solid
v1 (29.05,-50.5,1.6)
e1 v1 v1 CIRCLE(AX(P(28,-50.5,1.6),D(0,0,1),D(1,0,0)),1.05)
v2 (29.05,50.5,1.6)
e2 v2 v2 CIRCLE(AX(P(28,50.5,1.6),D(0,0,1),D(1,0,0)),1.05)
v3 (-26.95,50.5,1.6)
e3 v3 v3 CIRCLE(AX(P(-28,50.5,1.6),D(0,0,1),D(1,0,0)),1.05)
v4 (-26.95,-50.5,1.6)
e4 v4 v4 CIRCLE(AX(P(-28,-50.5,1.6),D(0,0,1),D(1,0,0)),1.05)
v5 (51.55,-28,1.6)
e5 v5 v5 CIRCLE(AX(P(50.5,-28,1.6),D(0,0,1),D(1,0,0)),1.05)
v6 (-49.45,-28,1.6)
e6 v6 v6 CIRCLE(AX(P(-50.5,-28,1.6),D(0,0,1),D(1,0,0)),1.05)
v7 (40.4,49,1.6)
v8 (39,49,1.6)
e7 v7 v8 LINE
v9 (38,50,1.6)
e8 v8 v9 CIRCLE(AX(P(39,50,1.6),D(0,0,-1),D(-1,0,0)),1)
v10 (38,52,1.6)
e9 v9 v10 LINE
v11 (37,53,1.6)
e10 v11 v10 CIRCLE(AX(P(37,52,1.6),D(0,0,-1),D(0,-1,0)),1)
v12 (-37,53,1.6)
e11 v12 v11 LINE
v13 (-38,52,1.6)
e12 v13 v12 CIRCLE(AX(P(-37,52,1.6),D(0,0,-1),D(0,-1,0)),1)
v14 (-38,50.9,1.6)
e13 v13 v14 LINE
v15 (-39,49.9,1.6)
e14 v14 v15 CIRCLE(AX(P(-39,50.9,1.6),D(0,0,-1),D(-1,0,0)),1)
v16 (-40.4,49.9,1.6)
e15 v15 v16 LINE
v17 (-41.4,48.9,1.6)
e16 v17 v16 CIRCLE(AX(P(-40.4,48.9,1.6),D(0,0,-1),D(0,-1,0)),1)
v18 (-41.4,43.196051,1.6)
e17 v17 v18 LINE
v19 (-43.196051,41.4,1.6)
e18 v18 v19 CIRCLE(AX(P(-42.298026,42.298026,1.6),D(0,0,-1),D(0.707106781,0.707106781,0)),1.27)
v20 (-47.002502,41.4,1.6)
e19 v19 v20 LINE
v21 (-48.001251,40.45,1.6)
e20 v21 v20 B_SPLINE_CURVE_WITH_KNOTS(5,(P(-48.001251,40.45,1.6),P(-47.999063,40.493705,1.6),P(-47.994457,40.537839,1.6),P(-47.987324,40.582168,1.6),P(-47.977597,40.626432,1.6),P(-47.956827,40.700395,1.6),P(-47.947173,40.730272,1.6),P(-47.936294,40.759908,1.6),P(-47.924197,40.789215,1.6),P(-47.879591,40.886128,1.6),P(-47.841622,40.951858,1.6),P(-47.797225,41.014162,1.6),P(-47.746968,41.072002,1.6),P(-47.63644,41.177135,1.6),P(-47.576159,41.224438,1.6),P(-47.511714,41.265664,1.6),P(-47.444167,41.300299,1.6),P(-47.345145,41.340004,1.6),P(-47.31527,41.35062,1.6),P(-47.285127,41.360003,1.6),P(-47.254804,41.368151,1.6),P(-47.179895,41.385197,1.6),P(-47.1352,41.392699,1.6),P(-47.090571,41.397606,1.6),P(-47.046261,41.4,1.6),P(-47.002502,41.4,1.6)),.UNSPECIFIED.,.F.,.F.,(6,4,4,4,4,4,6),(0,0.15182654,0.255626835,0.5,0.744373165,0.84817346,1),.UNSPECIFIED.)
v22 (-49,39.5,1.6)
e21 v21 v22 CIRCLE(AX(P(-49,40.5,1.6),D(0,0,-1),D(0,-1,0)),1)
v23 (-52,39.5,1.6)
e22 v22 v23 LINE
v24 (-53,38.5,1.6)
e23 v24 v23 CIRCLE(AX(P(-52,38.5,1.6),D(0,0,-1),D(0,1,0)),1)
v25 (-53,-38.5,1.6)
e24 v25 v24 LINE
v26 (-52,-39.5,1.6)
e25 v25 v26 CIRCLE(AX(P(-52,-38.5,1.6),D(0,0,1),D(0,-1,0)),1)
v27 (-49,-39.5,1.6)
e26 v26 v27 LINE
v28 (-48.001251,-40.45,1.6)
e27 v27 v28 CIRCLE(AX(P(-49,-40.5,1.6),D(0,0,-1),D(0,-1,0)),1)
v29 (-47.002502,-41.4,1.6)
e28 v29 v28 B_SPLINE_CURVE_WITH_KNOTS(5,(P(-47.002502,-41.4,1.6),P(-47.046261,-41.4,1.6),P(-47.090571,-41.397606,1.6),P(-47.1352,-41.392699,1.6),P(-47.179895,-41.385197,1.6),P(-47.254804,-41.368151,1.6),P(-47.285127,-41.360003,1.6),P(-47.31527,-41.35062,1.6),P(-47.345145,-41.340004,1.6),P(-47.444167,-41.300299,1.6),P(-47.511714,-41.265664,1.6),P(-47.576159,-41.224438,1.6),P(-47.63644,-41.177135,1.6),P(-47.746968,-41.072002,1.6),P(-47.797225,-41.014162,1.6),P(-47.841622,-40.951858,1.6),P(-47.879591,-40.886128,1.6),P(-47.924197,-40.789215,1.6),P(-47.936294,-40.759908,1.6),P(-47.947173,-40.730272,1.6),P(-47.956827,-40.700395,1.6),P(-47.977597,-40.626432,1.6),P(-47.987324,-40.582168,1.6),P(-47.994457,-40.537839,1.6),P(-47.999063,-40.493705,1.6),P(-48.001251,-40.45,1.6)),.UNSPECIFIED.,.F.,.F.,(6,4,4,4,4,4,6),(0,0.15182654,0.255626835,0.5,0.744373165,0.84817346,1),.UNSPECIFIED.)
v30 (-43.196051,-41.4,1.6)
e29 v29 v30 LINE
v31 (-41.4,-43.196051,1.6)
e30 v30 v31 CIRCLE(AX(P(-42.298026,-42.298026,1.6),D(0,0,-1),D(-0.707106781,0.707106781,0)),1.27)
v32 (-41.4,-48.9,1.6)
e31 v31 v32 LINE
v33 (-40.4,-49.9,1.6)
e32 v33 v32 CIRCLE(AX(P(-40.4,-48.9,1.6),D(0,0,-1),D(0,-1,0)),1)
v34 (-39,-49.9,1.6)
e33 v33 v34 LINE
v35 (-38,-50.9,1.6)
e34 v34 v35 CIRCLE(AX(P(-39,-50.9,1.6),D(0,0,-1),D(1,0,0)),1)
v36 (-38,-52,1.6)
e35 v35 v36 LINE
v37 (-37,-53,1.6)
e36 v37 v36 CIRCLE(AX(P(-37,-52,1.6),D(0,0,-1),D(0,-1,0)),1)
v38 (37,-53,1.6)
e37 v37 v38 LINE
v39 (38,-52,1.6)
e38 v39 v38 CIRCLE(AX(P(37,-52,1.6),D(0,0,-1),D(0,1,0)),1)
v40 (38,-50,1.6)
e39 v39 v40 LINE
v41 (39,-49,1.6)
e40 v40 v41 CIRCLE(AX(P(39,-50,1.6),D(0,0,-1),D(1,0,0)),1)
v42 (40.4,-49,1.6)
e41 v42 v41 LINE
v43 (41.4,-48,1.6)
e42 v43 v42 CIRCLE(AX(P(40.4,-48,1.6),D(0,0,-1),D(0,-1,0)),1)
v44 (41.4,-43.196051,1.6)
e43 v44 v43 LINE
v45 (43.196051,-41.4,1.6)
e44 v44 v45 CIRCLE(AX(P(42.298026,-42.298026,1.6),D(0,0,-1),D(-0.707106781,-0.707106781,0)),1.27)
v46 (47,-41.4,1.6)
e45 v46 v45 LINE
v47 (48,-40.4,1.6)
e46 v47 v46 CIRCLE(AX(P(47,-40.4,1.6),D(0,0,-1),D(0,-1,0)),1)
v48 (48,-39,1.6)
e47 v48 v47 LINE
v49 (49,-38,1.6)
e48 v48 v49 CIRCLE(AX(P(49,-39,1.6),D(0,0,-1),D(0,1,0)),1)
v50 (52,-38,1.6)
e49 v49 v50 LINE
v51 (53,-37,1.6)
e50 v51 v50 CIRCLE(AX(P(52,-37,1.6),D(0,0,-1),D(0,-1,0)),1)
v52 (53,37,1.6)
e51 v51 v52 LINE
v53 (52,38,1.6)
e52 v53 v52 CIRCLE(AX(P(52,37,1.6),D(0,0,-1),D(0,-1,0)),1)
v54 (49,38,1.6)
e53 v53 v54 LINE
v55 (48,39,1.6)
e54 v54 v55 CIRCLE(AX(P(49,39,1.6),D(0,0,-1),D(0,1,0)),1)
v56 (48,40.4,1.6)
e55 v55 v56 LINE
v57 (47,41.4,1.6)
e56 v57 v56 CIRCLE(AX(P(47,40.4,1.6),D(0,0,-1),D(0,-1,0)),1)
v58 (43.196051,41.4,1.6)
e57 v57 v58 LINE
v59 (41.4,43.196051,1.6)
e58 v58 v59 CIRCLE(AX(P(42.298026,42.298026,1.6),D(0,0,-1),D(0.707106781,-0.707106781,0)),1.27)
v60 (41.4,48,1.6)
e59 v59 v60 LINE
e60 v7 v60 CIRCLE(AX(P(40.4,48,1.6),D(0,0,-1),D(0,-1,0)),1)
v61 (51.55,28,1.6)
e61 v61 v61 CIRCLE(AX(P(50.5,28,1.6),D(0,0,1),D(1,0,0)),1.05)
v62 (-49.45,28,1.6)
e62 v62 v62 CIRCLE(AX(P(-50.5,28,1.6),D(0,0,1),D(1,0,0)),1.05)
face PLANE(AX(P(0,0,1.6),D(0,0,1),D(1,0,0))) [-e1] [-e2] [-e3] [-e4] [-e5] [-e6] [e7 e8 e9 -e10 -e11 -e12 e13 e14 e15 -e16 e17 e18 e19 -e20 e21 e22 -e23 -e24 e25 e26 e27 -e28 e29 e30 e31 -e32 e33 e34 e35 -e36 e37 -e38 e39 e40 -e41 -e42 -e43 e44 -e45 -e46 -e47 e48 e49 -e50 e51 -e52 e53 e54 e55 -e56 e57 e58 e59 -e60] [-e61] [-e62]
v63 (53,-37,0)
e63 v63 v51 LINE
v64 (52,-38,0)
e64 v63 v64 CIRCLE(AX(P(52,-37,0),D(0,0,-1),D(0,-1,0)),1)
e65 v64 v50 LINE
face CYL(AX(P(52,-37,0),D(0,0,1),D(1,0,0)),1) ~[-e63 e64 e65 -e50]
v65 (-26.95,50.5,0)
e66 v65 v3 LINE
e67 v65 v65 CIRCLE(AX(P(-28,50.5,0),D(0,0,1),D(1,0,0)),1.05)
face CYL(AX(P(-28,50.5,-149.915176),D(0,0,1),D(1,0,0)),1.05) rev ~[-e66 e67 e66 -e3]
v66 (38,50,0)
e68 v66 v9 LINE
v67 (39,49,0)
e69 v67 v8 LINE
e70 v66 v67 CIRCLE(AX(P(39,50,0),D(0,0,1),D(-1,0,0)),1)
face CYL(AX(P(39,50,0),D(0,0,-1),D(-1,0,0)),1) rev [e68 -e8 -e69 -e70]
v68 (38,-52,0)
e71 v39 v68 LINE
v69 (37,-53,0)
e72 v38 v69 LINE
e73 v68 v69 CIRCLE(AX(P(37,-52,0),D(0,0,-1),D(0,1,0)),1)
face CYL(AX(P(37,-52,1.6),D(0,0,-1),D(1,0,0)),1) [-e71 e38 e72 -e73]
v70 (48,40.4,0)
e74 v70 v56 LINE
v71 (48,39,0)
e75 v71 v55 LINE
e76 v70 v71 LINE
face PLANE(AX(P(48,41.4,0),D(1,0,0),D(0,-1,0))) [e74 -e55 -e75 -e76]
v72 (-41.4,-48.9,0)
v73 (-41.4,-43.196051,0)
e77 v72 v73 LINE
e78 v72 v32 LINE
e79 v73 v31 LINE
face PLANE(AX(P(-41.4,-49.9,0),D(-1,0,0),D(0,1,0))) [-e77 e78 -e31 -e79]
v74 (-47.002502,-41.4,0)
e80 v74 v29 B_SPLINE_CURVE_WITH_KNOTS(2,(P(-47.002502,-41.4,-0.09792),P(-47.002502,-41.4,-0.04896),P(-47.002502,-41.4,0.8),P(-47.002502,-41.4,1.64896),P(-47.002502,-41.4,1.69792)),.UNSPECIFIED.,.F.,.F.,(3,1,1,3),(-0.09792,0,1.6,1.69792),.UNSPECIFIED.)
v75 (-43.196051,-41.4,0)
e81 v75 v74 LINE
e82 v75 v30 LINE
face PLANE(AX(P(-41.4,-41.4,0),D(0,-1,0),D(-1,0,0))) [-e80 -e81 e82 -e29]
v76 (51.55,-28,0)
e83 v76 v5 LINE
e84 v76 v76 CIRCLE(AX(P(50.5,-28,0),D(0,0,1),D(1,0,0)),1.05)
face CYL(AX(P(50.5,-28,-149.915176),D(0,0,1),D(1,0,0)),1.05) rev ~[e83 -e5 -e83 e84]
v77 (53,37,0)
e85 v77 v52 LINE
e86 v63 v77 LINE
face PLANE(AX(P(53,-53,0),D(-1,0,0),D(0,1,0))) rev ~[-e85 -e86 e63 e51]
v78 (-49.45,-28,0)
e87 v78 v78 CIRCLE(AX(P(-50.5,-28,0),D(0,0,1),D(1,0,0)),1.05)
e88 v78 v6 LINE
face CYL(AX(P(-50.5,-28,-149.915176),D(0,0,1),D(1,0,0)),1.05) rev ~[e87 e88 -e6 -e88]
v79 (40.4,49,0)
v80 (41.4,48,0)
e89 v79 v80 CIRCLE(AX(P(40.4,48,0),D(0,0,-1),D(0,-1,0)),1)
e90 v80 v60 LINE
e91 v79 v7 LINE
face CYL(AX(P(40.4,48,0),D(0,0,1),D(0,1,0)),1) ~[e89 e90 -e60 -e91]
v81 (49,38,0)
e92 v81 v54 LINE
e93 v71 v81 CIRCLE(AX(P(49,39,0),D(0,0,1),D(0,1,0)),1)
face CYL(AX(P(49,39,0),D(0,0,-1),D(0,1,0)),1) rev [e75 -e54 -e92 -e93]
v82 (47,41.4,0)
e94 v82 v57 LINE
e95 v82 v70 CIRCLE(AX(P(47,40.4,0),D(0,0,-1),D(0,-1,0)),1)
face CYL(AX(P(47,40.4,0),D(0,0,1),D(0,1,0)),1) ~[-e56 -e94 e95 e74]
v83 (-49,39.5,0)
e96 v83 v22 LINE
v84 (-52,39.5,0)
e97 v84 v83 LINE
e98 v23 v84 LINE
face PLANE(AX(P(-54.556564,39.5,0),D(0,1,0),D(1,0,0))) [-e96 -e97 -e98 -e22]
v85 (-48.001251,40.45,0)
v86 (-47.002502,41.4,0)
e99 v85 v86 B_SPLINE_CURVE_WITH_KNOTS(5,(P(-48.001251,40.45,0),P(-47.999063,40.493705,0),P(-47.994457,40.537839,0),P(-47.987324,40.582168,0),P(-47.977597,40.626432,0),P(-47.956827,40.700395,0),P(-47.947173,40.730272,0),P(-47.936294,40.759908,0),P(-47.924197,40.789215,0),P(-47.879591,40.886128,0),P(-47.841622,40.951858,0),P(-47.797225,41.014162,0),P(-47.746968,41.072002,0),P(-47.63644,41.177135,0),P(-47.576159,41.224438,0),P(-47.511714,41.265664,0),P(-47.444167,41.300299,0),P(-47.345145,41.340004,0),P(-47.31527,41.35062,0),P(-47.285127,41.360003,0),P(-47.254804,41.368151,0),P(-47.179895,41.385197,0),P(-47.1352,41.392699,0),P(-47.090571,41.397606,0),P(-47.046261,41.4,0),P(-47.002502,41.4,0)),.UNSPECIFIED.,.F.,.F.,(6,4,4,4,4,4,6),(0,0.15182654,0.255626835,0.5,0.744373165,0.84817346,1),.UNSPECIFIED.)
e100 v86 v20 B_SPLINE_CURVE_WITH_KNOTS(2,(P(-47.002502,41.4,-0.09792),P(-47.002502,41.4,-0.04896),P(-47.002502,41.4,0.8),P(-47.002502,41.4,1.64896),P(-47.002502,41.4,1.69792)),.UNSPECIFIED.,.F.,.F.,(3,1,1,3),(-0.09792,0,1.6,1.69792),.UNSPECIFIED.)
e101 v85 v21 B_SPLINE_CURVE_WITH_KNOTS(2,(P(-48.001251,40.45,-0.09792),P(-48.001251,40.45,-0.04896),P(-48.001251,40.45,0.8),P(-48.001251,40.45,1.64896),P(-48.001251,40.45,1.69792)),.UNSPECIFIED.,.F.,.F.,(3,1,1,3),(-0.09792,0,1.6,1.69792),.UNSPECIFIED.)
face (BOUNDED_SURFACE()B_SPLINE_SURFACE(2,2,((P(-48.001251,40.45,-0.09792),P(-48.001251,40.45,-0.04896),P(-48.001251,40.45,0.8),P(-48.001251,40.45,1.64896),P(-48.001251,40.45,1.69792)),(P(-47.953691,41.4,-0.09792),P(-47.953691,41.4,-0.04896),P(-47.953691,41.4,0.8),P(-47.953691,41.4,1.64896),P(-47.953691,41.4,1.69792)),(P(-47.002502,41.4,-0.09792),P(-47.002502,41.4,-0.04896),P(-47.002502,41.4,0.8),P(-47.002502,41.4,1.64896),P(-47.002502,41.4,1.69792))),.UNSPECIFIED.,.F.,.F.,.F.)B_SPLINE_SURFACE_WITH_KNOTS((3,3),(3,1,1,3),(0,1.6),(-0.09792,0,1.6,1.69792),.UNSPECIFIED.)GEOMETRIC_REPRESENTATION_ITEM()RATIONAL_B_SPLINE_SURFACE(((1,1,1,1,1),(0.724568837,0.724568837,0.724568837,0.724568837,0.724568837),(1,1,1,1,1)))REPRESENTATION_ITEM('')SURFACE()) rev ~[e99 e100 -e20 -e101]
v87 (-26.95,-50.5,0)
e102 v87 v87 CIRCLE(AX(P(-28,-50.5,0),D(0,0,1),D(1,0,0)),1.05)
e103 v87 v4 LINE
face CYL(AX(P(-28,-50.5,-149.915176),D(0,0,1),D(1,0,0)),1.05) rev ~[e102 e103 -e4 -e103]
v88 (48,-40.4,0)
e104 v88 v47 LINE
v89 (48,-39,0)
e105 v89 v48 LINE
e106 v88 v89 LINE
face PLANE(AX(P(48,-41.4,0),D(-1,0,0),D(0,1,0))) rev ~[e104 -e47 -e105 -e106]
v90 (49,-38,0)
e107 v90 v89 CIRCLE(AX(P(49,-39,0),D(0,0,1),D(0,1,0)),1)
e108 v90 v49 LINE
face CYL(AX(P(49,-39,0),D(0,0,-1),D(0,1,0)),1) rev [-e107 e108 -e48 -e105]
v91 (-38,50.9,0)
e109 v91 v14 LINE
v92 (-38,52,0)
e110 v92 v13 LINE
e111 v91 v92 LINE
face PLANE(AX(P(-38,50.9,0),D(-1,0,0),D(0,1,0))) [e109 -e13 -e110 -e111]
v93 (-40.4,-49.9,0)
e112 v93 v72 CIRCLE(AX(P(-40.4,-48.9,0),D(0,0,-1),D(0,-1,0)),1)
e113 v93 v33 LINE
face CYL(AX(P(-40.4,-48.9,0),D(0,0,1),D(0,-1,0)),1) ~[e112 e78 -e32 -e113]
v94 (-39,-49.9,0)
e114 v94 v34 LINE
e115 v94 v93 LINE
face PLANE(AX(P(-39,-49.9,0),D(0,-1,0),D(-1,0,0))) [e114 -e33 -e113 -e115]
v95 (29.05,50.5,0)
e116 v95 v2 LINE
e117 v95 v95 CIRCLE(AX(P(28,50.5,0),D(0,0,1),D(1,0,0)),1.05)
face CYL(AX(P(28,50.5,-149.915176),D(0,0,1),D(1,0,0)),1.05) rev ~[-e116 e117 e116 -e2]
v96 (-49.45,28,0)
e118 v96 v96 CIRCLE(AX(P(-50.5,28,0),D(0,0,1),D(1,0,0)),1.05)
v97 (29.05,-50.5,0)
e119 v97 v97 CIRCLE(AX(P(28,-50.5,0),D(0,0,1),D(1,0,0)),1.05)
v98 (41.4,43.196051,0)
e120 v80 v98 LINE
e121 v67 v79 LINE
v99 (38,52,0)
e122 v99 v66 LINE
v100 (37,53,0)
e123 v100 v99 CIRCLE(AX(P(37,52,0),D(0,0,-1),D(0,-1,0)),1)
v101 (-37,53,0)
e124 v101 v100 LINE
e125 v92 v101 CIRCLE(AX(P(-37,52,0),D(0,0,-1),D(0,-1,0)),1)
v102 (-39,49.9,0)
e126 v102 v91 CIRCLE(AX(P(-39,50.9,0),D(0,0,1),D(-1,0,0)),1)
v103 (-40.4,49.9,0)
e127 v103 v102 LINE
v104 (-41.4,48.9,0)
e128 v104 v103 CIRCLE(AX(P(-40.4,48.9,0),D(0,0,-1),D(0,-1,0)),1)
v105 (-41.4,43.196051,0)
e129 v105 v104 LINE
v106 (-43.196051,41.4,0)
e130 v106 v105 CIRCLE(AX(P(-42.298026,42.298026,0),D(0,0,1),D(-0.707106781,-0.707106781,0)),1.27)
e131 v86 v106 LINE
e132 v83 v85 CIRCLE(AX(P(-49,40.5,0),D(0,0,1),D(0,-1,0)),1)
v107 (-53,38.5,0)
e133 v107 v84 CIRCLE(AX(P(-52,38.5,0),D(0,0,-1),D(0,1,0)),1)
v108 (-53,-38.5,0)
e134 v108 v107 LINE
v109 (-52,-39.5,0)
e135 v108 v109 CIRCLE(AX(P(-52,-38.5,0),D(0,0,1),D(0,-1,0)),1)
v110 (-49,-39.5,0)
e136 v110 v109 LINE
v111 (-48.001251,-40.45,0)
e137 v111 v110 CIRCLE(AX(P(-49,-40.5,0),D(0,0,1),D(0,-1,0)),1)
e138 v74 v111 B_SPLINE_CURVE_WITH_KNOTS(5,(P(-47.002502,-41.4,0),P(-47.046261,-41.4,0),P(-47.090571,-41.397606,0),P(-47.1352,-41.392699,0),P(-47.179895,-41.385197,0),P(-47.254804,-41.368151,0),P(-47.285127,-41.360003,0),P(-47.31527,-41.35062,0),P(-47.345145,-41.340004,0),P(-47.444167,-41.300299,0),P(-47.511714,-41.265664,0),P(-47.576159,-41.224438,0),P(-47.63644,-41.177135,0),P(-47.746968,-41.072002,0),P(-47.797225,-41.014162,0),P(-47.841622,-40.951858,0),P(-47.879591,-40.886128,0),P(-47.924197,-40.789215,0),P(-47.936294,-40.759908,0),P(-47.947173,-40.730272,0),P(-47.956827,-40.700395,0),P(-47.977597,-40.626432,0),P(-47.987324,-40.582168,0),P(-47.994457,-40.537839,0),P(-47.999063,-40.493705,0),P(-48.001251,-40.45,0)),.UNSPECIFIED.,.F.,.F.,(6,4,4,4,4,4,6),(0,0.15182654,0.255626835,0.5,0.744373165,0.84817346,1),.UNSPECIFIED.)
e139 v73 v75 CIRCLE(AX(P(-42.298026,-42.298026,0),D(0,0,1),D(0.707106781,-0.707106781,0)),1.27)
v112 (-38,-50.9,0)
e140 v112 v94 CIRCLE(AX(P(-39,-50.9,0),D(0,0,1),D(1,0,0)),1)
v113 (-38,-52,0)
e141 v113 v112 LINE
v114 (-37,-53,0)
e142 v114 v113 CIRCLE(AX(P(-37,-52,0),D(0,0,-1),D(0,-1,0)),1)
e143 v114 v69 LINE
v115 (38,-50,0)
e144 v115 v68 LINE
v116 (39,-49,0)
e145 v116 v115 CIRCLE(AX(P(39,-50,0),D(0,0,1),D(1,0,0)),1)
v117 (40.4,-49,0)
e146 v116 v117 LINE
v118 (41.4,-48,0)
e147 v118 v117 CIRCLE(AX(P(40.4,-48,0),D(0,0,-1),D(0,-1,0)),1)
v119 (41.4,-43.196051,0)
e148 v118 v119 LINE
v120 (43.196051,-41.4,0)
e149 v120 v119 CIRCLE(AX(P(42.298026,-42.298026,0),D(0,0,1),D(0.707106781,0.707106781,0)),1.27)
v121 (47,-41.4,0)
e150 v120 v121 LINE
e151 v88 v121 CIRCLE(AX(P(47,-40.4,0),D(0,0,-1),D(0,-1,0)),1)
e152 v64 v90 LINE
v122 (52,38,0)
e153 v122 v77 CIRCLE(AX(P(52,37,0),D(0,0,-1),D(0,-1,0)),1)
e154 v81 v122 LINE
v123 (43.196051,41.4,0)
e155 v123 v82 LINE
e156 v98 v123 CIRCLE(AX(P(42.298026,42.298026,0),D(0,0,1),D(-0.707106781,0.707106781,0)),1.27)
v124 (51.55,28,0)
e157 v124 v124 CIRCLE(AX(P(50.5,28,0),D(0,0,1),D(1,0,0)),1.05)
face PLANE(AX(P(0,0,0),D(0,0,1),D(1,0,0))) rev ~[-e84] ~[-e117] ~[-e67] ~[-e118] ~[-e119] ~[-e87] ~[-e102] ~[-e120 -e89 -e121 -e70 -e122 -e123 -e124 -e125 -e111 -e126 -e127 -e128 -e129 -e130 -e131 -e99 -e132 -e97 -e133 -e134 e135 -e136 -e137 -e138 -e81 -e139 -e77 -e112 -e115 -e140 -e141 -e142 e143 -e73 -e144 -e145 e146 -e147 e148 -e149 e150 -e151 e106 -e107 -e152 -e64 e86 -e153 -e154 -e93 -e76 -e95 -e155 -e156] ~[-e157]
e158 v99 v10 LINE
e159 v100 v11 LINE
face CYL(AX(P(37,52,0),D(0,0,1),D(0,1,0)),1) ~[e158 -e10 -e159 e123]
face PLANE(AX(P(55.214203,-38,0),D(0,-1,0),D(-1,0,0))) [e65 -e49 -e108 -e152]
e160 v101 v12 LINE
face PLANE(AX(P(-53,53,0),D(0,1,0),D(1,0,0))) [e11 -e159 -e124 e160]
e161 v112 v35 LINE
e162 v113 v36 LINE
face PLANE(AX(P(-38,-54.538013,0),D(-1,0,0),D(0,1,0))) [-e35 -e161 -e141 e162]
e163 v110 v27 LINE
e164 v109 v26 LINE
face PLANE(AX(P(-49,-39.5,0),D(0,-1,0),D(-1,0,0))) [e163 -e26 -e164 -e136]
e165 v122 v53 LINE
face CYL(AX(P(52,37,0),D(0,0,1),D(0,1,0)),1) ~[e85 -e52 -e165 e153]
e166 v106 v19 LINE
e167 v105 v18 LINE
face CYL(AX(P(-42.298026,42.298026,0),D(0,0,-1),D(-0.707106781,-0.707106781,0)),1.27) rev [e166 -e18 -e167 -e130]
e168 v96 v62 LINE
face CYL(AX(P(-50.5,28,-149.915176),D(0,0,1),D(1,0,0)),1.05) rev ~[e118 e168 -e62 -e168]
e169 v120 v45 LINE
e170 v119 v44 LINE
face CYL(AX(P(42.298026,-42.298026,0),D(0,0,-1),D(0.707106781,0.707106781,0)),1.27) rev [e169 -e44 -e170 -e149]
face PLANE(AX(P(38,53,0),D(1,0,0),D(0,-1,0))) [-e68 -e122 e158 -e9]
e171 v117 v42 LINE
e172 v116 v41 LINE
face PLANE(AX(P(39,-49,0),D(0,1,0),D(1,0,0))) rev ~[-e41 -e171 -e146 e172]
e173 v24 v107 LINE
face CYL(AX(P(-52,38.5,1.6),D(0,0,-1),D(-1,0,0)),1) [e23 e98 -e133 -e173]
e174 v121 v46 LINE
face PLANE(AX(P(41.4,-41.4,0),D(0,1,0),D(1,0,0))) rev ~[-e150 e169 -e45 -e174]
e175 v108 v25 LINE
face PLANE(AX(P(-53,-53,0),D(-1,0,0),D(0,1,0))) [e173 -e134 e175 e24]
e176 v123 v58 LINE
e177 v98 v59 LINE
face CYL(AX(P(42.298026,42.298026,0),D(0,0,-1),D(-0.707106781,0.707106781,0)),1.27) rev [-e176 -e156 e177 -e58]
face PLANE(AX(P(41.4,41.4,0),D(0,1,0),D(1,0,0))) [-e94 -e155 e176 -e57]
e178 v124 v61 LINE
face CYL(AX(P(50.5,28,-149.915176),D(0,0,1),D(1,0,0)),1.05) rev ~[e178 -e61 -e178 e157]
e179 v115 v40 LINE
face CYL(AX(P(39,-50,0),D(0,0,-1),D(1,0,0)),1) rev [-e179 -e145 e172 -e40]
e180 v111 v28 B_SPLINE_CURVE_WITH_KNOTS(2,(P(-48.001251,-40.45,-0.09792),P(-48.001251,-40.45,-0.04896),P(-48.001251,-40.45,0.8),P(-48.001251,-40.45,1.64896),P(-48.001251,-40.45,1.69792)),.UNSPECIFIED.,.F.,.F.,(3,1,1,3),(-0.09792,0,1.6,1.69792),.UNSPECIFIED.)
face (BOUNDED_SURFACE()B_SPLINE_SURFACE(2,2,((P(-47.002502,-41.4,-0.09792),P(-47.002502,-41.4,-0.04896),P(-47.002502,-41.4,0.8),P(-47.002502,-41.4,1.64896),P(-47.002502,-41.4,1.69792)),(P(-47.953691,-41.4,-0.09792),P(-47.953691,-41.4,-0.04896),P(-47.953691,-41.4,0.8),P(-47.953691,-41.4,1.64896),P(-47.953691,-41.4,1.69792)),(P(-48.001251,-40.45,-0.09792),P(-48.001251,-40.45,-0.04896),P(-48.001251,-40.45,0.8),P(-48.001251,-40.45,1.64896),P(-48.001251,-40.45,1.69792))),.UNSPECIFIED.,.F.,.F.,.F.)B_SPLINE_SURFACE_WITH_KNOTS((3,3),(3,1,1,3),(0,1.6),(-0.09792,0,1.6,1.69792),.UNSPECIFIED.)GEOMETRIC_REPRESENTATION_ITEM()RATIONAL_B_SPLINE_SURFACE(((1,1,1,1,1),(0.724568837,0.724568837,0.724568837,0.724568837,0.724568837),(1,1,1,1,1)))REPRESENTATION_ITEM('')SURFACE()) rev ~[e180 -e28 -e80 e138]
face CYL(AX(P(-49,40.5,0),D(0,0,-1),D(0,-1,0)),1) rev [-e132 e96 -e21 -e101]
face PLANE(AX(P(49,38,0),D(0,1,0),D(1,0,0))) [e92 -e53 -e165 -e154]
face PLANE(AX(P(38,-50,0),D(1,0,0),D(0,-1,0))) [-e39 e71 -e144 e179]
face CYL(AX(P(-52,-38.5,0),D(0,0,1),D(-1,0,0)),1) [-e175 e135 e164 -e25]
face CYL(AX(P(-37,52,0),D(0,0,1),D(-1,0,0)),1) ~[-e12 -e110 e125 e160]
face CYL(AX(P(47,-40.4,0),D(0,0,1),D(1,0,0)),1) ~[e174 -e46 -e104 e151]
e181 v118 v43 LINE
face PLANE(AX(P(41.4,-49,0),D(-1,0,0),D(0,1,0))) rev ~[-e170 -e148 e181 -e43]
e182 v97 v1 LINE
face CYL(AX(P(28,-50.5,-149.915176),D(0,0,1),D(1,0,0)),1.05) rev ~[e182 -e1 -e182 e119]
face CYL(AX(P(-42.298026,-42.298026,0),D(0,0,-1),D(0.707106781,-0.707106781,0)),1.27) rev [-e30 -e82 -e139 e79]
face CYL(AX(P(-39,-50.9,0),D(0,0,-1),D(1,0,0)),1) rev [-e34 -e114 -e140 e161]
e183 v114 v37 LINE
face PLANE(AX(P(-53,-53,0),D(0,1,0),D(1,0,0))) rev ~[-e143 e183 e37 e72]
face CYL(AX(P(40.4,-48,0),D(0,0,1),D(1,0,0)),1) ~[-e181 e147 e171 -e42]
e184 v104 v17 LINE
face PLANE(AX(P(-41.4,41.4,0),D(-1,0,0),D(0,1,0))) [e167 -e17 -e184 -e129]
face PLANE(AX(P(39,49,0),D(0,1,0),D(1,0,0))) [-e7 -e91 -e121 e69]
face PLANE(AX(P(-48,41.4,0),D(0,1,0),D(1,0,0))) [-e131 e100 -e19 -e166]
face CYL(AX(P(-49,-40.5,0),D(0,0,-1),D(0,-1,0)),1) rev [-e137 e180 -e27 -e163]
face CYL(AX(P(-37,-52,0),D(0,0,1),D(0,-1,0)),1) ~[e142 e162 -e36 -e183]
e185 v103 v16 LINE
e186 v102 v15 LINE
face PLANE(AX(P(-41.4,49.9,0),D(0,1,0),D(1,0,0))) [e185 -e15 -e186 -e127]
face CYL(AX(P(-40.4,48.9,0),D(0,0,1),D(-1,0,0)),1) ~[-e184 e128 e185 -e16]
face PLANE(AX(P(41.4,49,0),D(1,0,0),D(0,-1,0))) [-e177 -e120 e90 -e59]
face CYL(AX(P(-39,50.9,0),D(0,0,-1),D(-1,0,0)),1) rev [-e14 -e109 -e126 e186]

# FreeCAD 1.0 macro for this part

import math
import FreeCAD as App
import Part
import Sketcher

V = App.Vector
Q = App.Units.Quantity


def edges_at(feature, points):
    """Names of the edges that pass closest to the given points."""
    edges = feature.Shape.Edges
    near = lambda p: min(range(len(edges)), key=lambda i: edges[i].distToShape(Part.Vertex(*p))[0])
    return sorted({f"Edge{near(p) + 1}" for p in points})

doc = App.newDocument("Part")
body = doc.addObject("PartDesign::Body", "Body")

sketch1 = body.newObject("Sketcher::SketchObject", "Sketch")
sketch1.AttachmentSupport = (doc.getObject("XY_Plane"), [""])
sketch1.MapMode = "FlatFace"
sketch1.addGeometry([
    Part.LineSegment(V(-53, 53, 0), V(-53, -53, 0)),
    Part.LineSegment(V(-53, -53, 0), V(53, -53, 0)),
    Part.LineSegment(V(53, -53, 0), V(53, 53, 0)),
    Part.LineSegment(V(53, 53, 0), V(-53, 53, 0)),
], False)
sketch1.addConstraint([
    Sketcher.Constraint("Coincident", 0, 2, 1, 1),
    Sketcher.Constraint("Coincident", 1, 2, 2, 1),
    Sketcher.Constraint("Coincident", 2, 2, 3, 1),
    Sketcher.Constraint("Coincident", 3, 2, 0, 1),
    Sketcher.Constraint("Vertical", 0),
    Sketcher.Constraint("Horizontal", 1),
    Sketcher.Constraint("Vertical", 2),
    Sketcher.Constraint("Horizontal", 3),
    Sketcher.Constraint("Symmetric", 0, 2, 2, 2, -1, 1),
    Sketcher.Constraint("Equal", 3, 0),
    Sketcher.Constraint("DistanceX", 1, 1, 1, 2, Q("106 mm")),
])
pad1 = body.newObject("PartDesign::Pad", "Pad")
pad1.Profile = sketch1
pad1.Length = 1.6

sketch2 = body.newObject("Sketcher::SketchObject", "Sketch001")
sketch2.AttachmentSupport = (doc.getObject("XY_Plane"), [""])
sketch2.MapMode = "FlatFace"
sketch2.addGeometry([
    Part.LineSegment(V(41.4, -41.4, 0), V(48, -41.4, 0)),
    Part.LineSegment(V(48, -41.4, 0), V(48, -39, 0)),
    Part.LineSegment(V(48, -39, 0), V(60.106513, -39, 0)),
    Part.LineSegment(V(60.106513, -39, 0), V(60.106513, -61.452099, 0)),
    Part.LineSegment(V(60.106513, -61.452099, 0), V(39, -61.452099, 0)),
    Part.LineSegment(V(39, -61.452099, 0), V(39, -49, 0)),
    Part.LineSegment(V(39, -49, 0), V(41.4, -49, 0)),
    Part.LineSegment(V(41.4, -49, 0), V(41.4, -41.4, 0)),
    Part.LineSegment(V(-39, -49.9, 0), V(-39, -56.275253, 0)),
    Part.LineSegment(V(-39, -56.275253, 0), V(-55.517672, -56.275253, 0)),
    Part.LineSegment(V(-55.517672, -56.275253, 0), V(-55.517672, -40.5, 0)),
    Part.LineSegment(V(-55.517672, -40.5, 0), V(-48, -40.5, 0)),
    Part.LineSegment(V(-48, -40.5, 0), V(-48, -41.4, 0)),
    Part.LineSegment(V(-48, -41.4, 0), V(-41.4, -41.4, 0)),
    Part.LineSegment(V(-41.4, -41.4, 0), V(-41.4, -49.9, 0)),
    Part.LineSegment(V(-41.4, -49.9, 0), V(-39, -49.9, 0)),
    Part.LineSegment(V(-48, 40.5, 0), V(-55.383847, 40.5, 0)),
    Part.LineSegment(V(-55.383847, 40.5, 0), V(-55.383847, 57.687688, 0)),
    Part.LineSegment(V(-55.383847, 57.687688, 0), V(-39, 57.687688, 0)),
    Part.LineSegment(V(-39, 57.687688, 0), V(-39, 49.9, 0)),
    Part.LineSegment(V(-39, 49.9, 0), V(-41.4, 49.9, 0)),
    Part.LineSegment(V(-41.4, 49.9, 0), V(-41.4, 41.4, 0)),
    Part.LineSegment(V(-41.4, 41.4, 0), V(-48, 41.4, 0)),
    Part.LineSegment(V(-48, 41.4, 0), V(-48, 40.5, 0)),
    Part.LineSegment(V(39, 49, 0), V(39, 59.880423, 0)),
    Part.LineSegment(V(39, 59.880423, 0), V(56.842823, 59.880423, 0)),
    Part.LineSegment(V(56.842823, 59.880423, 0), V(56.842823, 39, 0)),
    Part.LineSegment(V(56.842823, 39, 0), V(48, 39, 0)),
    Part.LineSegment(V(48, 39, 0), V(48, 41.4, 0)),
    Part.LineSegment(V(48, 41.4, 0), V(41.4, 41.4, 0)),
    Part.LineSegment(V(41.4, 41.4, 0), V(41.4, 49, 0)),
    Part.LineSegment(V(41.4, 49, 0), V(39, 49, 0)),
], False)
sketch2.addConstraint([
    Sketcher.Constraint("Coincident", 0, 2, 1, 1),
    Sketcher.Constraint("Coincident", 1, 2, 2, 1),
    Sketcher.Constraint("Coincident", 2, 2, 3, 1),
    Sketcher.Constraint("Coincident", 3, 2, 4, 1),
    Sketcher.Constraint("Coincident", 4, 2, 5, 1),
    Sketcher.Constraint("Coincident", 5, 2, 6, 1),
    Sketcher.Constraint("Coincident", 6, 2, 7, 1),
    Sketcher.Constraint("Coincident", 7, 2, 0, 1),
    Sketcher.Constraint("Coincident", 8, 2, 9, 1),
    Sketcher.Constraint("Coincident", 9, 2, 10, 1),
    Sketcher.Constraint("Coincident", 10, 2, 11, 1),
    Sketcher.Constraint("Coincident", 11, 2, 12, 1),
    Sketcher.Constraint("Coincident", 12, 2, 13, 1),
    Sketcher.Constraint("Coincident", 13, 2, 14, 1),
    Sketcher.Constraint("Coincident", 14, 2, 15, 1),
    Sketcher.Constraint("Coincident", 15, 2, 8, 1),
    Sketcher.Constraint("Coincident", 16, 2, 17, 1),
    Sketcher.Constraint("Coincident", 17, 2, 18, 1),
    Sketcher.Constraint("Coincident", 18, 2, 19, 1),
    Sketcher.Constraint("Coincident", 19, 2, 20, 1),
    Sketcher.Constraint("Coincident", 20, 2, 21, 1),
    Sketcher.Constraint("Coincident", 21, 2, 22, 1),
    Sketcher.Constraint("Coincident", 22, 2, 23, 1),
    Sketcher.Constraint("Coincident", 23, 2, 16, 1),
    Sketcher.Constraint("Coincident", 24, 2, 25, 1),
    Sketcher.Constraint("Coincident", 25, 2, 26, 1),
    Sketcher.Constraint("Coincident", 26, 2, 27, 1),
    Sketcher.Constraint("Coincident", 27, 2, 28, 1),
    Sketcher.Constraint("Coincident", 28, 2, 29, 1),
    Sketcher.Constraint("Coincident", 29, 2, 30, 1),
    Sketcher.Constraint("Coincident", 30, 2, 31, 1),
    Sketcher.Constraint("Coincident", 31, 2, 24, 1),
    Sketcher.Constraint("Horizontal", 0),
    Sketcher.Constraint("Vertical", 1),
    Sketcher.Constraint("Horizontal", 2),
    Sketcher.Constraint("Vertical", 3),
    Sketcher.Constraint("Horizontal", 4),
    Sketcher.Constraint("Vertical", 5),
    Sketcher.Constraint("Horizontal", 6),
    Sketcher.Constraint("Vertical", 7),
    Sketcher.Constraint("Vertical", 8),
    Sketcher.Constraint("Horizontal", 9),
    Sketcher.Constraint("Vertical", 10),
    Sketcher.Constraint("Horizontal", 11),
    Sketcher.Constraint("Vertical", 12),
    Sketcher.Constraint("Horizontal", 13),
    Sketcher.Constraint("Vertical", 14),
    Sketcher.Constraint("Horizontal", 15),
    Sketcher.Constraint("Horizontal", 16),
    Sketcher.Constraint("Vertical", 17),
    Sketcher.Constraint("Horizontal", 18),
    Sketcher.Constraint("Vertical", 19),
    Sketcher.Constraint("Horizontal", 20),
    Sketcher.Constraint("Vertical", 21),
    Sketcher.Constraint("Horizontal", 22),
    Sketcher.Constraint("Vertical", 23),
    Sketcher.Constraint("Vertical", 24),
    Sketcher.Constraint("Horizontal", 25),
    Sketcher.Constraint("Vertical", 26),
    Sketcher.Constraint("Horizontal", 27),
    Sketcher.Constraint("Vertical", 28),
    Sketcher.Constraint("Horizontal", 29),
    Sketcher.Constraint("Vertical", 30),
    Sketcher.Constraint("Horizontal", 31),
    Sketcher.Constraint("Symmetric", 7, 2, 21, 2, -1, 1),
    Sketcher.Constraint("Symmetric", 12, 2, 28, 2, -1, 1),
    Sketcher.Constraint("Symmetric", 0, 2, 12, 2, -2),
    Sketcher.Constraint("Symmetric", 15, 2, 19, 2, -1),
    Sketcher.Constraint("Symmetric", 11, 2, 23, 2, -1),
    Sketcher.Constraint("Symmetric", 6, 2, 30, 2, -1),
    Sketcher.Constraint("Vertical", 14, 2, 20, 2),
    Sketcher.Constraint("Vertical", 5, 2, 24, 2),
    Sketcher.Constraint("Equal", 6, 15),
    Sketcher.Constraint("Equal", 31, 1),
    Sketcher.Constraint("Equal", 1, 28),
    Sketcher.Constraint("DistanceX", 0, 1, 0, 2, Q("6.6 mm")),
    Sketcher.Constraint("DistanceX", 6, 1, 6, 2, Q("2.4 mm")),
    Sketcher.Constraint("DistanceY", 7, 1, 7, 2, Q("7.6 mm")),
    Sketcher.Constraint("DistanceY", 12, 2, 12, 1, Q("0.9 mm")),
    Sketcher.Constraint("DistanceY", 14, 2, 14, 1, Q("8.5 mm")),
    Sketcher.Constraint("DistanceX", -1, 1, 0, 2, Q("48 mm")),
    Sketcher.Constraint("DistanceY", 1, 2, -1, 1, Q("39 mm")),
    Sketcher.Constraint("DistanceY", 3, 2, 3, 1, Q("22.452099 mm")),
    Sketcher.Constraint("DistanceX", 2, 1, 2, 2, Q("12.106513 mm")),
    Sketcher.Constraint("DistanceX", 9, 2, 9, 1, Q("16.517672 mm")),
    Sketcher.Constraint("DistanceX", 16, 2, 16, 1, Q("7.383847 mm")),
    Sketcher.Constraint("DistanceX", 25, 1, 25, 2, Q("17.842823 mm")),
    Sketcher.Constraint("DistanceY", 8, 2, 8, 1, Q("6.375253 mm")),
    Sketcher.Constraint("DistanceY", 17, 1, 17, 2, Q("17.187688 mm")),
    Sketcher.Constraint("DistanceY", 24, 1, 24, 2, Q("10.880423 mm")),
])
pocket1 = body.newObject("PartDesign::Pocket", "Pocket")
pocket1.Profile = sketch2
pocket1.Type = "ThroughAll"
pocket1.Reversed = True

sketch3 = body.newObject("Sketcher::SketchObject", "Sketch002")
sketch3.AttachmentSupport = (doc.getObject("XY_Plane"), [""])
sketch3.MapMode = "FlatFace"
sketch3.addGeometry([
    Part.LineSegment(V(44.546497, -46.342548, 0), V(41.4, -43.196051, 0)),
    Part.ArcOfCircle(Part.Circle(V(42.298026, -42.298026, 0), V(0, 0, 1), 1.27), math.radians(45), math.radians(225)),
    Part.LineSegment(V(43.196051, -41.4, 0), V(46.342548, -44.546497, 0)),
    Part.ArcOfCircle(Part.Circle(V(45.444523, -45.444523, 0), V(0, 0, 1), 1.27), math.radians(-135), math.radians(45)),
    Part.LineSegment(V(-44.938218, -43.142166, 0), V(-43.196051, -41.4, 0)),
    Part.ArcOfCircle(Part.Circle(V(-42.298026, -42.298026, 0), V(0, 0, 1), 1.27), math.radians(-45), math.radians(135)),
    Part.LineSegment(V(-41.4, -43.196051, 0), V(-43.142166, -44.938218, 0)),
    Part.ArcOfCircle(Part.Circle(V(-44.040192, -44.040192, 0), V(0, 0, 1), 1.27), math.radians(135), math.radians(315)),
    Part.LineSegment(V(-43.13099, 44.927041, 0), V(-41.4, 43.196051, 0)),
    Part.ArcOfCircle(Part.Circle(V(-42.298026, 42.298026, 0), V(0, 0, 1), 1.27), math.radians(-135), math.radians(45)),
    Part.LineSegment(V(-43.196051, 41.4, 0), V(-44.927041, 43.13099, 0)),
    Part.ArcOfCircle(Part.Circle(V(-44.029016, 44.029016, 0), V(0, 0, 1), 1.27), math.radians(45), math.radians(225)),
    Part.LineSegment(V(44.694846, 42.898795, 0), V(43.196051, 41.4, 0)),
    Part.ArcOfCircle(Part.Circle(V(42.298026, 42.298026, 0), V(0, 0, 1), 1.27), math.radians(135), math.radians(315)),
    Part.LineSegment(V(41.4, 43.196051, 0), V(42.898795, 44.694846, 0)),
    Part.ArcOfCircle(Part.Circle(V(43.796821, 43.796821, 0), V(0, 0, 1), 1.27), math.radians(-45), math.radians(135)),
], False)
sketch3.addConstraint([
    Sketcher.Constraint("Tangent", 0, 2, 1, 2),
    Sketcher.Constraint("Tangent", 1, 1, 2, 1),
    Sketcher.Constraint("Tangent", 2, 2, 3, 2),
    Sketcher.Constraint("Tangent", 3, 1, 0, 1),
    Sketcher.Constraint("Tangent", 4, 2, 5, 2),
    Sketcher.Constraint("Tangent", 5, 1, 6, 1),
    Sketcher.Constraint("Tangent", 6, 2, 7, 2),
    Sketcher.Constraint("Tangent", 7, 1, 4, 1),
    Sketcher.Constraint("Tangent", 8, 2, 9, 2),
    Sketcher.Constraint("Tangent", 9, 1, 10, 1),
    Sketcher.Constraint("Tangent", 10, 2, 11, 2),
    Sketcher.Constraint("Tangent", 11, 1, 8, 1),
    Sketcher.Constraint("Tangent", 12, 2, 13, 2),
    Sketcher.Constraint("Tangent", 13, 1, 14, 1),
    Sketcher.Constraint("Tangent", 14, 2, 15, 2),
    Sketcher.Constraint("Tangent", 15, 1, 12, 1),
    Sketcher.Constraint("Equal", 1, 3),
    Sketcher.Constraint("Equal", 3, 5),
    Sketcher.Constraint("Equal", 5, 7),
    Sketcher.Constraint("Equal", 7, 9),
    Sketcher.Constraint("Equal", 9, 11),
    Sketcher.Constraint("Equal", 11, 13),
    Sketcher.Constraint("Equal", 13, 15),
    Sketcher.Constraint("Symmetric", 1, 3, 9, 3, -1, 1),
    Sketcher.Constraint("Symmetric", 5, 3, 13, 3, -1, 1),
    Sketcher.Constraint("Symmetric", 1, 3, 5, 3, -2),
    Sketcher.Constraint("Perpendicular", 2, 4),
    Sketcher.Constraint("Perpendicular", 6, 8),
    Sketcher.Constraint("Perpendicular", 10, 12),
    Sketcher.Constraint("Horizontal", 1, 1, 4, 2),
    Sketcher.Constraint("Radius", 1, Q("1.27 mm")),
    Sketcher.Constraint("DistanceX", -1, 1, 0, 2, Q("41.4 mm")),
    Sketcher.Constraint("DistanceY", 1, 1, -1, 1, Q("41.4 mm")),
    Sketcher.Constraint("Distance", 0, Q("4.449819 mm")),
    Sketcher.Constraint("Distance", 8, Q("2.44799 mm")),
    Sketcher.Constraint("DistanceX", -1, 1, 15, 3, Q("43.796821 mm")),
    Sketcher.Constraint("DistanceY", 3, 3, 7, 3, Q("1.404331 mm")),
])
pocket2 = body.newObject("PartDesign::Pocket", "Pocket001")
pocket2.Profile = sketch3
pocket2.Type = "ThroughAll"
pocket2.Reversed = True

sketch4 = body.newObject("Sketcher::SketchObject", "Sketch003")
sketch4.AttachmentSupport = (doc.getObject("XY_Plane"), [""])
sketch4.MapMode = "FlatFace"
sketch4.addGeometry([
    Part.LineSegment(V(40, 53, 0), V(40, 50, 0)),
    Part.ArcOfCircle(Part.Circle(V(39, 50, 0), V(0, 0, 1), 1), math.radians(180), math.radians(360)),
    Part.LineSegment(V(38, 50, 0), V(38, 53, 0)),
    Part.ArcOfCircle(Part.Circle(V(39, 53, 0), V(0, 0, 1), 1), math.radians(0), math.radians(180)),
    Part.LineSegment(V(53, 38, 0), V(49, 38, 0)),
    Part.ArcOfCircle(Part.Circle(V(49, 39, 0), V(0, 0, 1), 1), math.radians(90), math.radians(270)),
    Part.LineSegment(V(49, 40, 0), V(53, 40, 0)),
    Part.ArcOfCircle(Part.Circle(V(53, 39, 0), V(0, 0, 1), 1), math.radians(-90), math.radians(90)),
    Part.LineSegment(V(55.214203, -40, 0), V(49, -40, 0)),
    Part.ArcOfCircle(Part.Circle(V(49, -39, 0), V(0, 0, 1), 1), math.radians(90), math.radians(270)),
    Part.LineSegment(V(49, -38, 0), V(55.214203, -38, 0)),
    Part.ArcOfCircle(Part.Circle(V(55.214203, -39, 0), V(0, 0, 1), 1), math.radians(-90), math.radians(90)),
    Part.LineSegment(V(38, -53.916094, 0), V(38, -50, 0)),
    Part.ArcOfCircle(Part.Circle(V(39, -50, 0), V(0, 0, 1), 1), math.radians(0), math.radians(180)),
    Part.LineSegment(V(40, -50, 0), V(40, -53.916094, 0)),
    Part.ArcOfCircle(Part.Circle(V(39, -53.916094, 0), V(0, 0, 1), 1), math.radians(180), math.radians(360)),
    Part.LineSegment(V(-40, -54.538013, 0), V(-40, -50.9, 0)),
    Part.ArcOfCircle(Part.Circle(V(-39, -50.9, 0), V(0, 0, 1), 1), math.radians(0), math.radians(180)),
    Part.LineSegment(V(-38, -50.9, 0), V(-38, -54.538013, 0)),
    Part.ArcOfCircle(Part.Circle(V(-39, -54.538013, 0), V(0, 0, 1), 1), math.radians(180), math.radians(360)),
    Part.LineSegment(V(-54.202623, -39.5, 0), V(-49, -39.5, 0)),
    Part.ArcOfCircle(Part.Circle(V(-49, -40.5, 0), V(0, 0, 1), 1), math.radians(-90), math.radians(90)),
    Part.LineSegment(V(-49, -41.5, 0), V(-54.202623, -41.5, 0)),
    Part.ArcOfCircle(Part.Circle(V(-54.202623, -40.5, 0), V(0, 0, 1), 1), math.radians(90), math.radians(270)),
    Part.LineSegment(V(-54.556564, 41.5, 0), V(-49, 41.5, 0)),
    Part.ArcOfCircle(Part.Circle(V(-49, 40.5, 0), V(0, 0, 1), 1), math.radians(-90), math.radians(90)),
    Part.LineSegment(V(-49, 39.5, 0), V(-54.556564, 39.5, 0)),
    Part.ArcOfCircle(Part.Circle(V(-54.556564, 40.5, 0), V(0, 0, 1), 1), math.radians(90), math.radians(270)),
    Part.LineSegment(V(-38, 55.828093, 0), V(-38, 50.9, 0)),
    Part.ArcOfCircle(Part.Circle(V(-39, 50.9, 0), V(0, 0, 1), 1), math.radians(180), math.radians(360)),
    Part.LineSegment(V(-40, 50.9, 0), V(-40, 55.828093, 0)),
    Part.ArcOfCircle(Part.Circle(V(-39, 55.828093, 0), V(0, 0, 1), 1), math.radians(0), math.radians(180)),
], False)
sketch4.addConstraint([
    Sketcher.Constraint("Tangent", 0, 2, 1, 2),
    Sketcher.Constraint("Tangent", 1, 1, 2, 1),
    Sketcher.Constraint("Tangent", 2, 2, 3, 2),
    Sketcher.Constraint("Tangent", 3, 1, 0, 1),
    Sketcher.Constraint("Tangent", 4, 2, 5, 2),
    Sketcher.Constraint("Tangent", 5, 1, 6, 1),
    Sketcher.Constraint("Tangent", 6, 2, 7, 2),
    Sketcher.Constraint("Tangent", 7, 1, 4, 1),
    Sketcher.Constraint("Tangent", 8, 2, 9, 2),
    Sketcher.Constraint("Tangent", 9, 1, 10, 1),
    Sketcher.Constraint("Tangent", 10, 2, 11, 2),
    Sketcher.Constraint("Tangent", 11, 1, 8, 1),
    Sketcher.Constraint("Tangent", 12, 2, 13, 2),
    Sketcher.Constraint("Tangent", 13, 1, 14, 1),
    Sketcher.Constraint("Tangent", 14, 2, 15, 2),
    Sketcher.Constraint("Tangent", 15, 1, 12, 1),
    Sketcher.Constraint("Tangent", 16, 2, 17, 2),
    Sketcher.Constraint("Tangent", 17, 1, 18, 1),
    Sketcher.Constraint("Tangent", 18, 2, 19, 2),
    Sketcher.Constraint("Tangent", 19, 1, 16, 1),
    Sketcher.Constraint("Tangent", 20, 2, 21, 2),
    Sketcher.Constraint("Tangent", 21, 1, 22, 1),
    Sketcher.Constraint("Tangent", 22, 2, 23, 2),
    Sketcher.Constraint("Tangent", 23, 1, 20, 1),
    Sketcher.Constraint("Tangent", 24, 2, 25, 2),
    Sketcher.Constraint("Tangent", 25, 1, 26, 1),
    Sketcher.Constraint("Tangent", 26, 2, 27, 2),
    Sketcher.Constraint("Tangent", 27, 1, 24, 1),
    Sketcher.Constraint("Tangent", 28, 2, 29, 2),
    Sketcher.Constraint("Tangent", 29, 1, 30, 1),
    Sketcher.Constraint("Tangent", 30, 2, 31, 2),
    Sketcher.Constraint("Tangent", 31, 1, 28, 1),
    Sketcher.Constraint("Vertical", 0),
    Sketcher.Constraint("Vertical", 2),
    Sketcher.Constraint("Horizontal", 4),
    Sketcher.Constraint("Horizontal", 6),
    Sketcher.Constraint("Horizontal", 8),
    Sketcher.Constraint("Horizontal", 10),
    Sketcher.Constraint("Vertical", 12),
    Sketcher.Constraint("Vertical", 14),
    Sketcher.Constraint("Vertical", 16),
    Sketcher.Constraint("Vertical", 18),
    Sketcher.Constraint("Horizontal", 20),
    Sketcher.Constraint("Horizontal", 22),
    Sketcher.Constraint("Horizontal", 24),
    Sketcher.Constraint("Horizontal", 26),
    Sketcher.Constraint("Vertical", 28),
    Sketcher.Constraint("Vertical", 30),
    Sketcher.Constraint("Equal", 3, 5),
    Sketcher.Constraint("Equal", 7, 9),
    Sketcher.Constraint("Equal", 11, 13),
    Sketcher.Constraint("Equal", 15, 17),
    Sketcher.Constraint("Equal", 19, 21),
    Sketcher.Constraint("Equal", 23, 25),
    Sketcher.Constraint("Equal", 27, 29),
    Sketcher.Constraint("Symmetric", 5, 3, 9, 3, -1),
    Sketcher.Constraint("Symmetric", 1, 3, 13, 3, -1),
    Sketcher.Constraint("Symmetric", 21, 3, 25, 3, -1),
    Sketcher.Constraint("Symmetric", 17, 3, 29, 3, -1),
    Sketcher.Constraint("Radius", 1, Q("1 mm")),
    Sketcher.Constraint("DistanceX", 4, 2, 4, 1, Q("4 mm")),
    Sketcher.Constraint("DistanceY", 0, 2, 0, 1, Q("3 mm")),
    Sketcher.Constraint("DistanceX", -1, 1, 1, 3, Q("39 mm")),
    Sketcher.Constraint("DistanceY", -1, 1, 1, 3, Q("50 mm")),
    Sketcher.Constraint("DistanceX", -1, 1, 5, 3, Q("49 mm")),
    Sketcher.Constraint("DistanceY", -1, 1, 5, 3, Q("39 mm")),
    Sketcher.Constraint("DistanceX", 17, 3, -1, 1, Q("39 mm")),
    Sketcher.Constraint("DistanceX", 21, 3, -1, 1, Q("49 mm")),
    Sketcher.Constraint("DistanceY", 21, 3, 25, 3, Q("81 mm")),
    Sketcher.Constraint("DistanceY", 17, 3, -1, 1, Q("50.9 mm")),
    Sketcher.Constraint("DistanceX", 8, 2, 8, 1, Q("6.214203 mm")),
    Sketcher.Constraint("DistanceX", 20, 1, 20, 2, Q("5.202623 mm")),
    Sketcher.Constraint("DistanceX", 24, 1, 24, 2, Q("5.556564 mm")),
    Sketcher.Constraint("DistanceY", 12, 1, 12, 2, Q("3.916094 mm")),
    Sketcher.Constraint("DistanceY", 16, 1, 16, 2, Q("3.638013 mm")),
    Sketcher.Constraint("DistanceY", 28, 2, 28, 1, Q("4.928093 mm")),
])
pocket3 = body.newObject("PartDesign::Pocket", "Pocket002")
pocket3.Profile = sketch4
pocket3.Type = "ThroughAll"
pocket3.Reversed = True
doc.recompute()

fillet = body.newObject("PartDesign::Fillet", "Fillet")
fillet.Base = (pocket3, edges_at(pocket3, [
    (-41.4, -49.9, 0.8),
    (-38, -53, 0.8),
    (-53, -39.5, 0.8),
    (-48, -41.4, 0.8),
    (-48, 41.4, 0.8),
    (-53, 39.5, 0.8),
    (-41.4, 49.9, 0.8),
    (-38, 53, 0.8),
    (38, 53, 0.8),
    (41.4, 49, 0.8),
    (48, 41.4, 0.8),
    (53, 38, 0.8),
    (53, -38, 0.8),
    (48, -41.4, 0.8),
    (41.4, -49, 0.8),
    (38, -53, 0.8),
]))
fillet.Radius = 1

sketch5 = body.newObject("Sketcher::SketchObject", "Sketch004")
sketch5.AttachmentSupport = (doc.getObject("XY_Plane"), [""])
sketch5.MapMode = "FlatFace"
sketch5.addGeometry([
    Part.Circle(V(-50.5, -28, 0), V(0, 0, 1), 1.05),
    Part.Circle(V(-28, -50.5, 0), V(0, 0, 1), 1.05),
    Part.Circle(V(50.5, -28, 0), V(0, 0, 1), 1.05),
    Part.Circle(V(28, -50.5, 0), V(0, 0, 1), 1.05),
    Part.Circle(V(28, 50.5, 0), V(0, 0, 1), 1.05),
    Part.Circle(V(50.5, 28, 0), V(0, 0, 1), 1.05),
    Part.Circle(V(-28, 50.5, 0), V(0, 0, 1), 1.05),
    Part.Circle(V(-50.5, 28, 0), V(0, 0, 1), 1.05),
], False)
sketch5.addConstraint([
    Sketcher.Constraint("Equal", 0, 1),
    Sketcher.Constraint("Equal", 1, 2),
    Sketcher.Constraint("Equal", 2, 3),
    Sketcher.Constraint("Equal", 3, 4),
    Sketcher.Constraint("Equal", 4, 5),
    Sketcher.Constraint("Equal", 5, 6),
    Sketcher.Constraint("Equal", 6, 7),
    Sketcher.Constraint("Symmetric", 1, 3, 4, 3, -1, 1),
    Sketcher.Constraint("Symmetric", 0, 3, 5, 3, -1, 1),
    Sketcher.Constraint("Symmetric", 3, 3, 6, 3, -1, 1),
    Sketcher.Constraint("Symmetric", 2, 3, 7, 3, -1, 1),
    Sketcher.Constraint("Symmetric", 0, 3, 2, 3, -2),
    Sketcher.Constraint("Symmetric", 1, 3, 3, 3, -2),
    Sketcher.Constraint("Diameter", 0, Q("2.1 mm")),
    Sketcher.Constraint("DistanceY", 0, 3, -1, 1, Q("28 mm")),
    Sketcher.Constraint("DistanceX", 1, 3, -1, 1, Q("28 mm")),
    Sketcher.Constraint("DistanceX", 0, 3, 2, 3, Q("101 mm")),
    Sketcher.Constraint("DistanceY", 3, 3, 4, 3, Q("101 mm")),
])
doc.recompute()
hole = body.newObject("PartDesign::Hole", "Hole")
hole.Profile = sketch5
hole.ThreadType = "None"
hole.Diameter = 2.1
hole.DepthType = "ThroughAll"
hole.Reversed = True

doc.recompute()
